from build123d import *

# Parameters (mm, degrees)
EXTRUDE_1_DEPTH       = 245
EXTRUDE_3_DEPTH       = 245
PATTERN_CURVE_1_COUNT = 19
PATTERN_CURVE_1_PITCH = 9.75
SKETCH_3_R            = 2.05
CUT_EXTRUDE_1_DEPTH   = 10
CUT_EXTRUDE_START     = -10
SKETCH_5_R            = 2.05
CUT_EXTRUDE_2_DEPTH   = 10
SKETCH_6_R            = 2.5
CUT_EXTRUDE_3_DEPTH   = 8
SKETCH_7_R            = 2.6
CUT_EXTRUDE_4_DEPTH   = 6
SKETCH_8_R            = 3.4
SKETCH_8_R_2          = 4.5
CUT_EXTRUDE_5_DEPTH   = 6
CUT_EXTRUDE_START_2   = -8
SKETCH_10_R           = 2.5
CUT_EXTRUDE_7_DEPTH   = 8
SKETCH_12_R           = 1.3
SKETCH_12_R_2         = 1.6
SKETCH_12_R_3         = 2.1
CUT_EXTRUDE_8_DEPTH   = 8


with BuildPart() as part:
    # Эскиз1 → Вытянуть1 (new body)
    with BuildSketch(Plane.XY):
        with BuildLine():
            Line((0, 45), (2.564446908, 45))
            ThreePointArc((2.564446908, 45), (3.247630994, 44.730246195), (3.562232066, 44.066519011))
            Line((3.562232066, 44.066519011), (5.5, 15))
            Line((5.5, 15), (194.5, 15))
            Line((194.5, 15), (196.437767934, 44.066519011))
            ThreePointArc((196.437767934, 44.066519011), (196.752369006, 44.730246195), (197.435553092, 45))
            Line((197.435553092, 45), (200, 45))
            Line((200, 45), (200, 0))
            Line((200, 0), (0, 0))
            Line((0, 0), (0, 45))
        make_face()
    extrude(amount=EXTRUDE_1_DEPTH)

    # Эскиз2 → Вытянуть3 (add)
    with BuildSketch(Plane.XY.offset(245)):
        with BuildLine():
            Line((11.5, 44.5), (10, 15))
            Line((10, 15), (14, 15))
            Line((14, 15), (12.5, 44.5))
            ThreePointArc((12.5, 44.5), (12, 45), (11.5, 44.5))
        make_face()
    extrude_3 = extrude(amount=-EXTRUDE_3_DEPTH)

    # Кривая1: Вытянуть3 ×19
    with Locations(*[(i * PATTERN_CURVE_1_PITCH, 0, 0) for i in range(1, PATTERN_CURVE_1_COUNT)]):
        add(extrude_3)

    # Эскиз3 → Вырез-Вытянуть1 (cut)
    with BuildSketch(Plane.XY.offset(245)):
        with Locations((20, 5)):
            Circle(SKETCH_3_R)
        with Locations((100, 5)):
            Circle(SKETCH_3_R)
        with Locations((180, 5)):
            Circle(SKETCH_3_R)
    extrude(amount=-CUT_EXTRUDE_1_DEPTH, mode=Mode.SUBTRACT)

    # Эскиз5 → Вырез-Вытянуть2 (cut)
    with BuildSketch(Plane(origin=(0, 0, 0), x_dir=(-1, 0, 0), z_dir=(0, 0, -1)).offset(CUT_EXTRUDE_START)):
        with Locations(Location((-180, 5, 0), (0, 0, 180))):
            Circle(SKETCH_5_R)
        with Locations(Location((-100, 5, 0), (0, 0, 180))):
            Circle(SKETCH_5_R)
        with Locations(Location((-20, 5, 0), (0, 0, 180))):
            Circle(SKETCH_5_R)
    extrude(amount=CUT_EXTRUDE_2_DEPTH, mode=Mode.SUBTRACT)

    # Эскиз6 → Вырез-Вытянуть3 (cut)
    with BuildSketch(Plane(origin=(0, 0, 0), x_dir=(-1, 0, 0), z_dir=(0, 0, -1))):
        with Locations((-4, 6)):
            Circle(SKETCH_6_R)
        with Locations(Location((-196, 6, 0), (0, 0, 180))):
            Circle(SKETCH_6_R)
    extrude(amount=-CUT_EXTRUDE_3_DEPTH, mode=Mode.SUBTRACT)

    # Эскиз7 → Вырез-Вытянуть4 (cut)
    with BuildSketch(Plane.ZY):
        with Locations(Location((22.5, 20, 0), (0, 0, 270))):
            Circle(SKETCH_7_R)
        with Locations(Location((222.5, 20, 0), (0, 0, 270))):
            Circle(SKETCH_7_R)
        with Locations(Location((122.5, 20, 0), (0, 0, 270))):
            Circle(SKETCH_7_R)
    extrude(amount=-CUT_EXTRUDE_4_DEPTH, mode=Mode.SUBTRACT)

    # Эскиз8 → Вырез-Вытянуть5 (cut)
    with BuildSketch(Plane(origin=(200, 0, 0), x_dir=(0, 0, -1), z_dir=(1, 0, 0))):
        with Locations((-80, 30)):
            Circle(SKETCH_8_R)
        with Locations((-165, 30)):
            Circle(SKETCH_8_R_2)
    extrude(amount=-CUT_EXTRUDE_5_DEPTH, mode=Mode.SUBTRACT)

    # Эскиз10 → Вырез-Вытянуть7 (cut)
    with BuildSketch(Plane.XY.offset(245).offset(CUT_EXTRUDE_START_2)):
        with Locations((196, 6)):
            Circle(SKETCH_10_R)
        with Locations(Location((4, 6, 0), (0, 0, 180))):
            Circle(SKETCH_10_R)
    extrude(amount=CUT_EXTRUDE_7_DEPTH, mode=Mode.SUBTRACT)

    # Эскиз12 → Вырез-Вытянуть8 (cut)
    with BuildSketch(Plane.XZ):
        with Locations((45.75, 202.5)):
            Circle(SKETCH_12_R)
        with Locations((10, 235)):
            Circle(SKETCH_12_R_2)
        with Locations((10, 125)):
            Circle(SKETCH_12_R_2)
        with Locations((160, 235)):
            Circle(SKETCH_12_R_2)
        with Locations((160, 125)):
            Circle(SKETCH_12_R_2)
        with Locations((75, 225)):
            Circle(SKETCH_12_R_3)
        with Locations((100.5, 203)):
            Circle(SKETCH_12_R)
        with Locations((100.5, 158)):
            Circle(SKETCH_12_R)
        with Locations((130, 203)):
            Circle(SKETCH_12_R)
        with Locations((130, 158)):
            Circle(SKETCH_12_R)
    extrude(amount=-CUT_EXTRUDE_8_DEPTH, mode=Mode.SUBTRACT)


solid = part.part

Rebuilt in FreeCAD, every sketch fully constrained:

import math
import FreeCAD as App
import Part
import Sketcher

V = App.Vector

doc = App.newDocument("Part")
body = doc.addObject("PartDesign::Body", "Body")

# Sketch on XY plane
sketch1 = body.newObject("Sketcher::SketchObject", "Sketch")
sketch1.AttachmentSupport = (doc.getObject("XY_Plane"), [""])
sketch1.MapMode = "FlatFace"
sketch1.addGeometry([
    Part.LineSegment(V(2.6, 45, 0), V(0, 45, 0)),  # 0
    Part.LineSegment(V(0, 45, 0), V(0, 0, 0)),  # 1
    Part.LineSegment(V(0, 0, 0), V(200, 0, 0)),  # 2
    Part.LineSegment(V(200, 0, 0), V(200, 45, 0)),  # 3
    Part.LineSegment(V(200, 45, 0), V(197.4, 45, 0)),  # 4
    Part.ArcOfCircle(Part.Circle(V(197.4, 44, 0), V(0, 0, 1), 1), math.radians(90), math.radians(176)),  # 5
    Part.LineSegment(V(196.4, 44.1, 0), V(194.5, 15, 0)),  # 6
    Part.LineSegment(V(194.5, 15, 0), V(5.5, 15, 0)),  # 7
    Part.LineSegment(V(5.5, 15, 0), V(3.6, 44.1, 0)),  # 8
    Part.ArcOfCircle(Part.Circle(V(2.6, 44, 0), V(0, 0, 1), 1), math.radians(4), math.radians(90)),  # 9
], False)
sketch1.addConstraint([
    Sketcher.Constraint("Coincident", 0, 2, 1, 1),
    Sketcher.Constraint("Coincident", 1, 2, 2, 1),
    Sketcher.Constraint("Coincident", 2, 2, 3, 1),
    Sketcher.Constraint("Coincident", 3, 2, 4, 1),
    Sketcher.Constraint("Tangent", 4, 2, 5, 1),
    Sketcher.Constraint("Tangent", 5, 2, 6, 1),
    Sketcher.Constraint("Coincident", 6, 2, 7, 1),
    Sketcher.Constraint("Coincident", 7, 2, 8, 1),
    Sketcher.Constraint("Tangent", 8, 2, 9, 1),
    Sketcher.Constraint("Tangent", 9, 2, 0, 1),
    Sketcher.Constraint("Horizontal", 0),
    Sketcher.Constraint("Vertical", 1),
    Sketcher.Constraint("Horizontal", 2),
    Sketcher.Constraint("Vertical", 3),
    Sketcher.Constraint("Horizontal", 4),
    Sketcher.Constraint("Horizontal", 7),
    Sketcher.Constraint("Coincident", 1, 2, -1, 1),
    Sketcher.Constraint("Equal", 5, 9),
    Sketcher.Constraint("Horizontal", 5, 3, 9, 3),
    Sketcher.Constraint("Horizontal", 5, 2, 8, 2),
    Sketcher.Constraint("Equal", 0, 4),
    Sketcher.Constraint("Radius", 5, 1.0),
    Sketcher.Constraint("DistanceX", 2, 1, 2, 2, 200.0),
    Sketcher.Constraint("DistanceX", 7, 2, 7, 1, 189.0),
    Sketcher.Constraint("DistanceY", 1, 2, 1, 1, 45.0),
    Sketcher.Constraint("DistanceY", -1, 1, 6, 2, 15.0),
    Sketcher.Constraint("Distance", 6, 29.13104),
])
pad1 = body.newObject("PartDesign::Pad", "Pad")
pad1.Profile = sketch1
pad1.Length = 245

# Sketch on XY plane
sketch2 = body.newObject("Sketcher::SketchObject", "Sketch001")
sketch2.AttachmentSupport = (doc.getObject("XY_Plane"), [""])
sketch2.MapMode = "FlatFace"
sketch2.AttachmentOffset = App.Placement(V(0, 0, 245), App.Rotation())
sketch2.addGeometry([
    Part.LineSegment(V(11.5, 44.5, 0), V(10, 15, 0)),
    Part.LineSegment(V(10, 15, 0), V(14, 15, 0)),
    Part.LineSegment(V(14, 15, 0), V(12.5, 44.5, 0)),
    Part.ArcOfCircle(Part.Circle(V(12, 44.5, 0), V(0, 0, 1), 0.5), math.radians(0), math.radians(180)),
], False)
sketch2.addConstraint([
    Sketcher.Constraint("Coincident", 0, 2, 1, 1),
    Sketcher.Constraint("Coincident", 1, 2, 2, 1),
    Sketcher.Constraint("Coincident", 2, 2, 3, 1),
    Sketcher.Constraint("Coincident", 3, 2, 0, 1),
    Sketcher.Constraint("Horizontal", 1),
    Sketcher.Constraint("Horizontal", 3, 3, 2, 2),
    Sketcher.Constraint("Horizontal", 2, 2, 3, 2),
    Sketcher.Constraint("Equal", 0, 2),
    Sketcher.Constraint("Radius", 3, 0.5),
    Sketcher.Constraint("DistanceX", 1, 1, 1, 2, 4.0),
    Sketcher.Constraint("DistanceX", -1, 1, 3, 3, 12.0),
    Sketcher.Constraint("DistanceY", -1, 1, 0, 2, 15.0),
    Sketcher.Constraint("DistanceY", -1, 1, 3, 3, 44.5),
])
pad2 = body.newObject("PartDesign::Pad", "Pad001")
pad2.Profile = sketch2
pad2.Length = 245
pad2.Reversed = True
doc.recompute()

linearpattern = body.newObject("PartDesign::LinearPattern", "LinearPattern")
linearpattern.Originals = [pad2]
linearpattern.Direction = (doc.getObject("X_Axis"), [""])
linearpattern.Mode = "offset"
linearpattern.Offset = 9.75
linearpattern.Occurrences = 19
body.Tip = linearpattern

# Sketch on XY plane
sketch3 = body.newObject("Sketcher::SketchObject", "Sketch002")
sketch3.AttachmentSupport = (doc.getObject("XY_Plane"), [""])
sketch3.MapMode = "FlatFace"
sketch3.AttachmentOffset = App.Placement(V(0, 0, 245), App.Rotation())
sketch3.addGeometry([
    Part.Circle(V(20, 5, 0), V(0, 0, 1), 2),
    Part.Circle(V(100, 5, 0), V(0, 0, 1), 2),
    Part.Circle(V(180, 5, 0), V(0, 0, 1), 2),
], False)
sketch3.addConstraint([
    Sketcher.Constraint("Equal", 0, 1),
    Sketcher.Constraint("Equal", 1, 2),
    Sketcher.Constraint("Horizontal", 0, 3, 1, 3),
    Sketcher.Constraint("Horizontal", 1, 3, 2, 3),
    Sketcher.Constraint("Diameter", 0, 4.1),
    Sketcher.Constraint("DistanceX", -1, 1, 0, 3, 20.0),
    Sketcher.Constraint("DistanceY", -1, 1, 0, 3, 5.0),
    Sketcher.Constraint("DistanceX", -1, 1, 1, 3, 100.0),
    Sketcher.Constraint("DistanceX", -1, 1, 2, 3, 180.0),
])
pocket1 = body.newObject("PartDesign::Pocket", "Pocket")
pocket1.Profile = sketch3
pocket1.Length = 10

# Sketch on XY plane
sketch4 = body.newObject("Sketcher::SketchObject", "Sketch003")
sketch4.AttachmentSupport = (doc.getObject("XY_Plane"), [""])
sketch4.MapMode = "FlatFace"
sketch4.AttachmentOffset = App.Placement(V(0, 0, 10), App.Rotation())
sketch4.addGeometry([
    Part.Circle(V(180, 5, 0), V(0, 0, 1), 2),
    Part.Circle(V(100, 5, 0), V(0, 0, 1), 2),
    Part.Circle(V(20, 5, 0), V(0, 0, 1), 2),
], False)
sketch4.addConstraint([
    Sketcher.Constraint("Equal", 0, 1),
    Sketcher.Constraint("Equal", 1, 2),
    Sketcher.Constraint("Horizontal", 0, 3, 1, 3),
    Sketcher.Constraint("Horizontal", 1, 3, 2, 3),
    Sketcher.Constraint("Diameter", 0, 4.1),
    Sketcher.Constraint("DistanceX", -1, 1, 0, 3, 180.0),
    Sketcher.Constraint("DistanceY", -1, 1, 0, 3, 5.0),
    Sketcher.Constraint("DistanceX", -1, 1, 1, 3, 100.0),
    Sketcher.Constraint("DistanceX", -1, 1, 2, 3, 20.0),
])
pocket2 = body.newObject("PartDesign::Pocket", "Pocket001")
pocket2.Profile = sketch4
pocket2.Length = 10

# Sketch on XY plane
sketch5 = body.newObject("Sketcher::SketchObject", "Sketch004")
sketch5.AttachmentSupport = (doc.getObject("XY_Plane"), [""])
sketch5.MapMode = "FlatFace"
sketch5.addGeometry([
    Part.Circle(V(4, 6, 0), V(0, 0, 1), 2.5),
    Part.Circle(V(196, 6, 0), V(0, 0, 1), 2.5),
], False)
sketch5.addConstraint([
    Sketcher.Constraint("Equal", 0, 1),
    Sketcher.Constraint("Horizontal", 0, 3, 1, 3),
    Sketcher.Constraint("Diameter", 0, 5.0),
    Sketcher.Constraint("DistanceX", -1, 1, 0, 3, 4.0),
    Sketcher.Constraint("DistanceY", -1, 1, 0, 3, 6.0),
    Sketcher.Constraint("DistanceX", -1, 1, 1, 3, 196.0),
])
pocket3 = body.newObject("PartDesign::Pocket", "Pocket002")
pocket3.Profile = sketch5
pocket3.Length = 8
pocket3.Reversed = True

# Sketch on YZ plane
sketch6 = body.newObject("Sketcher::SketchObject", "Sketch005")
sketch6.AttachmentSupport = (doc.getObject("YZ_Plane"), [""])
sketch6.MapMode = "FlatFace"
sketch6.addGeometry([
    Part.Circle(V(20, 22.5, 0), V(0, 0, 1), 2.6),
    Part.Circle(V(20, 222.5, 0), V(0, 0, 1), 2.6),
    Part.Circle(V(20, 122.5, 0), V(0, 0, 1), 2.6),
], False)
sketch6.addConstraint([
    Sketcher.Constraint("Equal", 0, 1),
    Sketcher.Constraint("Equal", 1, 2),
    Sketcher.Constraint("Vertical", 0, 3, 1, 3),
    Sketcher.Constraint("Vertical", 1, 3, 2, 3),
    Sketcher.Constraint("Diameter", 0, 5.2),
    Sketcher.Constraint("DistanceX", -1, 1, 0, 3, 20.0),
    Sketcher.Constraint("DistanceY", 0, 3, 1, 3, 200.0),
    Sketcher.Constraint("DistanceY", 0, 3, 2, 3, 100.0),
    Sketcher.Constraint("DistanceY", -1, 1, 0, 3, 22.5),
])
pocket4 = body.newObject("PartDesign::Pocket", "Pocket003")
pocket4.Profile = sketch6
pocket4.Length = 6
pocket4.Reversed = True

# Sketch on YZ plane
sketch7 = body.newObject("Sketcher::SketchObject", "Sketch006")
sketch7.AttachmentSupport = (doc.getObject("YZ_Plane"), [""])
sketch7.MapMode = "FlatFace"
sketch7.AttachmentOffset = App.Placement(V(0, 0, 200), App.Rotation())
sketch7.addGeometry([
    Part.Circle(V(30, 80, 0), V(0, 0, 1), 3.4),
    Part.Circle(V(30, 165, 0), V(0, 0, 1), 4.5),
], False)
sketch7.addConstraint([
    Sketcher.Constraint("Vertical", 0, 3, 1, 3),
    Sketcher.Constraint("Diameter", 1, 9.0),
    Sketcher.Constraint("Diameter", 0, 6.8),
    Sketcher.Constraint("DistanceX", -1, 1, 0, 3, 30.0),
    Sketcher.Constraint("DistanceY", -1, 1, 0, 3, 80.0),
    Sketcher.Constraint("DistanceY", -1, 1, 1, 3, 165.0),
])
pocket5 = body.newObject("PartDesign::Pocket", "Pocket004")
pocket5.Profile = sketch7
pocket5.Length = 6

# Sketch on XY plane
sketch8 = body.newObject("Sketcher::SketchObject", "Sketch007")
sketch8.AttachmentSupport = (doc.getObject("XY_Plane"), [""])
sketch8.MapMode = "FlatFace"
sketch8.AttachmentOffset = App.Placement(V(0, 0, 237), App.Rotation())
sketch8.addGeometry([
    Part.Circle(V(196, 6, 0), V(0, 0, 1), 2.5),
    Part.Circle(V(4, 6, 0), V(0, 0, 1), 2.5),
], False)
sketch8.addConstraint([
    Sketcher.Constraint("Equal", 0, 1),
    Sketcher.Constraint("Horizontal", 0, 3, 1, 3),
    Sketcher.Constraint("Diameter", 0, 5.0),
    Sketcher.Constraint("DistanceX", -1, 1, 0, 3, 196.0),
    Sketcher.Constraint("DistanceY", -1, 1, 0, 3, 6.0),
    Sketcher.Constraint("DistanceX", -1, 1, 1, 3, 4.0),
])
pocket6 = body.newObject("PartDesign::Pocket", "Pocket005")
pocket6.Profile = sketch8
pocket6.Length = 8
pocket6.Reversed = True

# Sketch on XZ plane
sketch9 = body.newObject("Sketcher::SketchObject", "Sketch008")
sketch9.AttachmentSupport = (doc.getObject("XZ_Plane"), [""])
sketch9.MapMode = "FlatFace"
sketch9.addGeometry([
    Part.Circle(V(45.8, 202.5, 0), V(0, 0, 1), 1.3),  # 0
    Part.Circle(V(10, 235, 0), V(0, 0, 1), 1.6),  # 1
    Part.Circle(V(10, 125, 0), V(0, 0, 1), 1.6),  # 2
    Part.Circle(V(160, 235, 0), V(0, 0, 1), 1.6),  # 3
    Part.Circle(V(160, 125, 0), V(0, 0, 1), 1.6),  # 4
    Part.Circle(V(75, 225, 0), V(0, 0, 1), 2.1),  # 5
    Part.Circle(V(100.5, 203, 0), V(0, 0, 1), 1.3),  # 6
    Part.Circle(V(100.5, 158, 0), V(0, 0, 1), 1.3),  # 7
    Part.Circle(V(130, 203, 0), V(0, 0, 1), 1.3),  # 8
    Part.Circle(V(130, 158, 0), V(0, 0, 1), 1.3),  # 9
], False)
sketch9.addConstraint([
    Sketcher.Constraint("Equal", 1, 2),
    Sketcher.Constraint("Equal", 2, 3),
    Sketcher.Constraint("Equal", 3, 4),
    Sketcher.Constraint("Equal", 0, 6),
    Sketcher.Constraint("Equal", 6, 7),
    Sketcher.Constraint("Equal", 7, 8),
    Sketcher.Constraint("Equal", 8, 9),
    Sketcher.Constraint("Horizontal", 1, 3, 3, 3),
    Sketcher.Constraint("Horizontal", 2, 3, 4, 3),
    Sketcher.Constraint("Horizontal", 6, 3, 8, 3),
    Sketcher.Constraint("Horizontal", 7, 3, 9, 3),
    Sketcher.Constraint("Vertical", 1, 3, 2, 3),
    Sketcher.Constraint("Vertical", 3, 3, 4, 3),
    Sketcher.Constraint("Vertical", 6, 3, 7, 3),
    Sketcher.Constraint("Vertical", 8, 3, 9, 3),
    Sketcher.Constraint("Diameter", 0, 2.6),
    Sketcher.Constraint("Diameter", 1, 3.2),
    Sketcher.Constraint("Diameter", 5, 4.2),
    Sketcher.Constraint("DistanceX", -1, 1, 1, 3, 10.0),
    Sketcher.Constraint("DistanceY", -1, 1, 1, 3, 235.0),
    Sketcher.Constraint("DistanceY", -1, 1, 2, 3, 125.0),
    Sketcher.Constraint("DistanceX", -1, 1, 3, 3, 160.0),
    Sketcher.Constraint("DistanceX", -1, 1, 5, 3, 75.0),
    Sketcher.Constraint("DistanceY", -1, 1, 5, 3, 225.0),
    Sketcher.Constraint("DistanceY", -1, 1, 6, 3, 203.0),
    Sketcher.Constraint("DistanceY", -1, 1, 7, 3, 158.0),
    Sketcher.Constraint("DistanceX", -1, 1, 8, 3, 130.0),
    Sketcher.Constraint("DistanceY", -1, 1, 0, 3, 202.5),
    Sketcher.Constraint("DistanceX", -1, 1, 6, 3, 100.5),
    Sketcher.Constraint("DistanceX", -1, 1, 0, 3, 45.75),
])
pocket7 = body.newObject("PartDesign::Pocket", "Pocket006")
pocket7.Profile = sketch9
pocket7.Length = 8

doc.recompute()
